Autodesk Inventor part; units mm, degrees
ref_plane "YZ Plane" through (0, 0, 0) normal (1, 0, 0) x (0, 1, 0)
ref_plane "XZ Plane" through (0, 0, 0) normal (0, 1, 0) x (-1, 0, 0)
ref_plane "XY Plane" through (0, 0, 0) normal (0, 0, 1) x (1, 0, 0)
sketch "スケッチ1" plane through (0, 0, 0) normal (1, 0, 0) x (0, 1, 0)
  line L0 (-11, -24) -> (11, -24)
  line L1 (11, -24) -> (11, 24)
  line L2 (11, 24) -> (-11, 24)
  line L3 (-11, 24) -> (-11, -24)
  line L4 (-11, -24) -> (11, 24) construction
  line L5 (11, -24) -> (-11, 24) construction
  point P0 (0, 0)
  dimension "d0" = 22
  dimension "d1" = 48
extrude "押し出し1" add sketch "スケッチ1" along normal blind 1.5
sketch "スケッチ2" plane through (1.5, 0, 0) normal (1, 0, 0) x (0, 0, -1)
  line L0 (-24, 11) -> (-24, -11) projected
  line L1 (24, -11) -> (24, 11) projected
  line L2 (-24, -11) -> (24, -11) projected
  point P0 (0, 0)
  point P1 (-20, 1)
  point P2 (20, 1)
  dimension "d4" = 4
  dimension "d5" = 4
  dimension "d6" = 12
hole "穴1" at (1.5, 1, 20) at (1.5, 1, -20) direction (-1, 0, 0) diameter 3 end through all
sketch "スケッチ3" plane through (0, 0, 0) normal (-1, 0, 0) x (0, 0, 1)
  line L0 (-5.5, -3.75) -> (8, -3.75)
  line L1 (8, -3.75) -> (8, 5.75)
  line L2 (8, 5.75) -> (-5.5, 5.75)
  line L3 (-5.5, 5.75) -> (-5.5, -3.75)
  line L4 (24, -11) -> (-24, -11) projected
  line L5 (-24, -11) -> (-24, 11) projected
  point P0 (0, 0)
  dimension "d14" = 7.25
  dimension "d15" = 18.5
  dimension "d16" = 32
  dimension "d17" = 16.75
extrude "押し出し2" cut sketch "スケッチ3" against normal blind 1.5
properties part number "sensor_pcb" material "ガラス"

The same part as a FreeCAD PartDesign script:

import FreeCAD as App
import Part
import Sketcher
Q = App.Units.Quantity

doc = App.newDocument("Part")
body = doc.addObject("PartDesign::Body", "Body")

# Sketch on YZ plane
sketch1 = body.newObject("Sketcher::SketchObject", "Sketch")
sketch1.AttachmentSupport = (doc.getObject("YZ_Plane"), [""])
sketch1.MapMode = "FlatFace"
sketch1.addGeometry([
    Part.LineSegment(App.Vector(-11, 24, 0), App.Vector(-11, -24, 0)),
    Part.LineSegment(App.Vector(-11, -24, 0), App.Vector(11, -24, 0)),
    Part.LineSegment(App.Vector(11, -24, 0), App.Vector(11, 24, 0)),
    Part.LineSegment(App.Vector(11, 24, 0), App.Vector(-11, 24, 0)),
], False)
sketch1.addConstraint([
    Sketcher.Constraint("Coincident", 0, 2, 1, 1),
    Sketcher.Constraint("Coincident", 1, 2, 2, 1),
    Sketcher.Constraint("Coincident", 2, 2, 3, 1),
    Sketcher.Constraint("Coincident", 3, 2, 0, 1),
    Sketcher.Constraint("Vertical", 0),
    Sketcher.Constraint("Horizontal", 1),
    Sketcher.Constraint("Vertical", 2),
    Sketcher.Constraint("Horizontal", 3),
    Sketcher.Constraint("Symmetric", 0, 2, 2, 2, -1, 1),
    Sketcher.Constraint("DistanceX", 1, 1, 1, 2, Q("22 mm")),
    Sketcher.Constraint("DistanceY", 0, 2, 0, 1, Q("48 mm")),
])
pad1 = body.newObject("PartDesign::Pad", "Pad")
pad1.Profile = sketch1
pad1.Length = 1.5

# Sketch on YZ plane
sketch2 = body.newObject("Sketcher::SketchObject", "Sketch001")
sketch2.AttachmentSupport = (doc.getObject("YZ_Plane"), [""])
sketch2.MapMode = "FlatFace"
sketch2.AttachmentOffset = App.Placement(App.Vector(0, 0, 1.5), App.Rotation())
sketch2.addGeometry([
    Part.Circle(App.Vector(1, 20, 0), App.Vector(0, 0, 1), 1.5),
    Part.Circle(App.Vector(1, -20, 0), App.Vector(0, 0, 1), 1.5),
], False)
sketch2.addConstraint([
    Sketcher.Constraint("Equal", 0, 1),
    Sketcher.Constraint("Symmetric", 0, 3, 1, 3, -1),
    Sketcher.Constraint("Diameter", 0, Q("3 mm")),
    Sketcher.Constraint("DistanceX", -1, 1, 0, 3, Q("1 mm")),
    Sketcher.Constraint("DistanceY", -1, 1, 0, 3, Q("20 mm")),
])
doc.recompute()
hole = body.newObject("PartDesign::Hole", "Hole")
hole.Profile = sketch2
hole.ThreadType = "None"
hole.Diameter = 3
hole.DepthType = "ThroughAll"

# Sketch on YZ plane
sketch3 = body.newObject("Sketcher::SketchObject", "Sketch002")
sketch3.AttachmentSupport = (doc.getObject("YZ_Plane"), [""])
sketch3.MapMode = "FlatFace"
sketch3.addGeometry([
    Part.LineSegment(App.Vector(5.75, -5.5, 0), App.Vector(-3.75, -5.5, 0)),
    Part.LineSegment(App.Vector(-3.75, -5.5, 0), App.Vector(-3.75, 8, 0)),
    Part.LineSegment(App.Vector(-3.75, 8, 0), App.Vector(5.75, 8, 0)),
    Part.LineSegment(App.Vector(5.75, 8, 0), App.Vector(5.75, -5.5, 0)),
], False)
sketch3.addConstraint([
    Sketcher.Constraint("Coincident", 0, 2, 1, 1),
    Sketcher.Constraint("Coincident", 1, 2, 2, 1),
    Sketcher.Constraint("Coincident", 2, 2, 3, 1),
    Sketcher.Constraint("Coincident", 3, 2, 0, 1),
    Sketcher.Constraint("Horizontal", 0),
    Sketcher.Constraint("Vertical", 1),
    Sketcher.Constraint("Horizontal", 2),
    Sketcher.Constraint("Vertical", 3),
    Sketcher.Constraint("DistanceX", 0, 2, 0, 1, Q("9.5 mm")),
    Sketcher.Constraint("DistanceY", 1, 1, 1, 2, Q("13.5 mm")),
    Sketcher.Constraint("DistanceY", -1, 1, 1, 2, Q("8 mm")),
    Sketcher.Constraint("DistanceX", 0, 2, -1, 1, Q("3.75 mm")),
])
pocket1 = body.newObject("PartDesign::Pocket", "Pocket")
pocket1.Profile = sketch3
pocket1.Length = 1.5
pocket1.Reversed = True

doc.recompute()
